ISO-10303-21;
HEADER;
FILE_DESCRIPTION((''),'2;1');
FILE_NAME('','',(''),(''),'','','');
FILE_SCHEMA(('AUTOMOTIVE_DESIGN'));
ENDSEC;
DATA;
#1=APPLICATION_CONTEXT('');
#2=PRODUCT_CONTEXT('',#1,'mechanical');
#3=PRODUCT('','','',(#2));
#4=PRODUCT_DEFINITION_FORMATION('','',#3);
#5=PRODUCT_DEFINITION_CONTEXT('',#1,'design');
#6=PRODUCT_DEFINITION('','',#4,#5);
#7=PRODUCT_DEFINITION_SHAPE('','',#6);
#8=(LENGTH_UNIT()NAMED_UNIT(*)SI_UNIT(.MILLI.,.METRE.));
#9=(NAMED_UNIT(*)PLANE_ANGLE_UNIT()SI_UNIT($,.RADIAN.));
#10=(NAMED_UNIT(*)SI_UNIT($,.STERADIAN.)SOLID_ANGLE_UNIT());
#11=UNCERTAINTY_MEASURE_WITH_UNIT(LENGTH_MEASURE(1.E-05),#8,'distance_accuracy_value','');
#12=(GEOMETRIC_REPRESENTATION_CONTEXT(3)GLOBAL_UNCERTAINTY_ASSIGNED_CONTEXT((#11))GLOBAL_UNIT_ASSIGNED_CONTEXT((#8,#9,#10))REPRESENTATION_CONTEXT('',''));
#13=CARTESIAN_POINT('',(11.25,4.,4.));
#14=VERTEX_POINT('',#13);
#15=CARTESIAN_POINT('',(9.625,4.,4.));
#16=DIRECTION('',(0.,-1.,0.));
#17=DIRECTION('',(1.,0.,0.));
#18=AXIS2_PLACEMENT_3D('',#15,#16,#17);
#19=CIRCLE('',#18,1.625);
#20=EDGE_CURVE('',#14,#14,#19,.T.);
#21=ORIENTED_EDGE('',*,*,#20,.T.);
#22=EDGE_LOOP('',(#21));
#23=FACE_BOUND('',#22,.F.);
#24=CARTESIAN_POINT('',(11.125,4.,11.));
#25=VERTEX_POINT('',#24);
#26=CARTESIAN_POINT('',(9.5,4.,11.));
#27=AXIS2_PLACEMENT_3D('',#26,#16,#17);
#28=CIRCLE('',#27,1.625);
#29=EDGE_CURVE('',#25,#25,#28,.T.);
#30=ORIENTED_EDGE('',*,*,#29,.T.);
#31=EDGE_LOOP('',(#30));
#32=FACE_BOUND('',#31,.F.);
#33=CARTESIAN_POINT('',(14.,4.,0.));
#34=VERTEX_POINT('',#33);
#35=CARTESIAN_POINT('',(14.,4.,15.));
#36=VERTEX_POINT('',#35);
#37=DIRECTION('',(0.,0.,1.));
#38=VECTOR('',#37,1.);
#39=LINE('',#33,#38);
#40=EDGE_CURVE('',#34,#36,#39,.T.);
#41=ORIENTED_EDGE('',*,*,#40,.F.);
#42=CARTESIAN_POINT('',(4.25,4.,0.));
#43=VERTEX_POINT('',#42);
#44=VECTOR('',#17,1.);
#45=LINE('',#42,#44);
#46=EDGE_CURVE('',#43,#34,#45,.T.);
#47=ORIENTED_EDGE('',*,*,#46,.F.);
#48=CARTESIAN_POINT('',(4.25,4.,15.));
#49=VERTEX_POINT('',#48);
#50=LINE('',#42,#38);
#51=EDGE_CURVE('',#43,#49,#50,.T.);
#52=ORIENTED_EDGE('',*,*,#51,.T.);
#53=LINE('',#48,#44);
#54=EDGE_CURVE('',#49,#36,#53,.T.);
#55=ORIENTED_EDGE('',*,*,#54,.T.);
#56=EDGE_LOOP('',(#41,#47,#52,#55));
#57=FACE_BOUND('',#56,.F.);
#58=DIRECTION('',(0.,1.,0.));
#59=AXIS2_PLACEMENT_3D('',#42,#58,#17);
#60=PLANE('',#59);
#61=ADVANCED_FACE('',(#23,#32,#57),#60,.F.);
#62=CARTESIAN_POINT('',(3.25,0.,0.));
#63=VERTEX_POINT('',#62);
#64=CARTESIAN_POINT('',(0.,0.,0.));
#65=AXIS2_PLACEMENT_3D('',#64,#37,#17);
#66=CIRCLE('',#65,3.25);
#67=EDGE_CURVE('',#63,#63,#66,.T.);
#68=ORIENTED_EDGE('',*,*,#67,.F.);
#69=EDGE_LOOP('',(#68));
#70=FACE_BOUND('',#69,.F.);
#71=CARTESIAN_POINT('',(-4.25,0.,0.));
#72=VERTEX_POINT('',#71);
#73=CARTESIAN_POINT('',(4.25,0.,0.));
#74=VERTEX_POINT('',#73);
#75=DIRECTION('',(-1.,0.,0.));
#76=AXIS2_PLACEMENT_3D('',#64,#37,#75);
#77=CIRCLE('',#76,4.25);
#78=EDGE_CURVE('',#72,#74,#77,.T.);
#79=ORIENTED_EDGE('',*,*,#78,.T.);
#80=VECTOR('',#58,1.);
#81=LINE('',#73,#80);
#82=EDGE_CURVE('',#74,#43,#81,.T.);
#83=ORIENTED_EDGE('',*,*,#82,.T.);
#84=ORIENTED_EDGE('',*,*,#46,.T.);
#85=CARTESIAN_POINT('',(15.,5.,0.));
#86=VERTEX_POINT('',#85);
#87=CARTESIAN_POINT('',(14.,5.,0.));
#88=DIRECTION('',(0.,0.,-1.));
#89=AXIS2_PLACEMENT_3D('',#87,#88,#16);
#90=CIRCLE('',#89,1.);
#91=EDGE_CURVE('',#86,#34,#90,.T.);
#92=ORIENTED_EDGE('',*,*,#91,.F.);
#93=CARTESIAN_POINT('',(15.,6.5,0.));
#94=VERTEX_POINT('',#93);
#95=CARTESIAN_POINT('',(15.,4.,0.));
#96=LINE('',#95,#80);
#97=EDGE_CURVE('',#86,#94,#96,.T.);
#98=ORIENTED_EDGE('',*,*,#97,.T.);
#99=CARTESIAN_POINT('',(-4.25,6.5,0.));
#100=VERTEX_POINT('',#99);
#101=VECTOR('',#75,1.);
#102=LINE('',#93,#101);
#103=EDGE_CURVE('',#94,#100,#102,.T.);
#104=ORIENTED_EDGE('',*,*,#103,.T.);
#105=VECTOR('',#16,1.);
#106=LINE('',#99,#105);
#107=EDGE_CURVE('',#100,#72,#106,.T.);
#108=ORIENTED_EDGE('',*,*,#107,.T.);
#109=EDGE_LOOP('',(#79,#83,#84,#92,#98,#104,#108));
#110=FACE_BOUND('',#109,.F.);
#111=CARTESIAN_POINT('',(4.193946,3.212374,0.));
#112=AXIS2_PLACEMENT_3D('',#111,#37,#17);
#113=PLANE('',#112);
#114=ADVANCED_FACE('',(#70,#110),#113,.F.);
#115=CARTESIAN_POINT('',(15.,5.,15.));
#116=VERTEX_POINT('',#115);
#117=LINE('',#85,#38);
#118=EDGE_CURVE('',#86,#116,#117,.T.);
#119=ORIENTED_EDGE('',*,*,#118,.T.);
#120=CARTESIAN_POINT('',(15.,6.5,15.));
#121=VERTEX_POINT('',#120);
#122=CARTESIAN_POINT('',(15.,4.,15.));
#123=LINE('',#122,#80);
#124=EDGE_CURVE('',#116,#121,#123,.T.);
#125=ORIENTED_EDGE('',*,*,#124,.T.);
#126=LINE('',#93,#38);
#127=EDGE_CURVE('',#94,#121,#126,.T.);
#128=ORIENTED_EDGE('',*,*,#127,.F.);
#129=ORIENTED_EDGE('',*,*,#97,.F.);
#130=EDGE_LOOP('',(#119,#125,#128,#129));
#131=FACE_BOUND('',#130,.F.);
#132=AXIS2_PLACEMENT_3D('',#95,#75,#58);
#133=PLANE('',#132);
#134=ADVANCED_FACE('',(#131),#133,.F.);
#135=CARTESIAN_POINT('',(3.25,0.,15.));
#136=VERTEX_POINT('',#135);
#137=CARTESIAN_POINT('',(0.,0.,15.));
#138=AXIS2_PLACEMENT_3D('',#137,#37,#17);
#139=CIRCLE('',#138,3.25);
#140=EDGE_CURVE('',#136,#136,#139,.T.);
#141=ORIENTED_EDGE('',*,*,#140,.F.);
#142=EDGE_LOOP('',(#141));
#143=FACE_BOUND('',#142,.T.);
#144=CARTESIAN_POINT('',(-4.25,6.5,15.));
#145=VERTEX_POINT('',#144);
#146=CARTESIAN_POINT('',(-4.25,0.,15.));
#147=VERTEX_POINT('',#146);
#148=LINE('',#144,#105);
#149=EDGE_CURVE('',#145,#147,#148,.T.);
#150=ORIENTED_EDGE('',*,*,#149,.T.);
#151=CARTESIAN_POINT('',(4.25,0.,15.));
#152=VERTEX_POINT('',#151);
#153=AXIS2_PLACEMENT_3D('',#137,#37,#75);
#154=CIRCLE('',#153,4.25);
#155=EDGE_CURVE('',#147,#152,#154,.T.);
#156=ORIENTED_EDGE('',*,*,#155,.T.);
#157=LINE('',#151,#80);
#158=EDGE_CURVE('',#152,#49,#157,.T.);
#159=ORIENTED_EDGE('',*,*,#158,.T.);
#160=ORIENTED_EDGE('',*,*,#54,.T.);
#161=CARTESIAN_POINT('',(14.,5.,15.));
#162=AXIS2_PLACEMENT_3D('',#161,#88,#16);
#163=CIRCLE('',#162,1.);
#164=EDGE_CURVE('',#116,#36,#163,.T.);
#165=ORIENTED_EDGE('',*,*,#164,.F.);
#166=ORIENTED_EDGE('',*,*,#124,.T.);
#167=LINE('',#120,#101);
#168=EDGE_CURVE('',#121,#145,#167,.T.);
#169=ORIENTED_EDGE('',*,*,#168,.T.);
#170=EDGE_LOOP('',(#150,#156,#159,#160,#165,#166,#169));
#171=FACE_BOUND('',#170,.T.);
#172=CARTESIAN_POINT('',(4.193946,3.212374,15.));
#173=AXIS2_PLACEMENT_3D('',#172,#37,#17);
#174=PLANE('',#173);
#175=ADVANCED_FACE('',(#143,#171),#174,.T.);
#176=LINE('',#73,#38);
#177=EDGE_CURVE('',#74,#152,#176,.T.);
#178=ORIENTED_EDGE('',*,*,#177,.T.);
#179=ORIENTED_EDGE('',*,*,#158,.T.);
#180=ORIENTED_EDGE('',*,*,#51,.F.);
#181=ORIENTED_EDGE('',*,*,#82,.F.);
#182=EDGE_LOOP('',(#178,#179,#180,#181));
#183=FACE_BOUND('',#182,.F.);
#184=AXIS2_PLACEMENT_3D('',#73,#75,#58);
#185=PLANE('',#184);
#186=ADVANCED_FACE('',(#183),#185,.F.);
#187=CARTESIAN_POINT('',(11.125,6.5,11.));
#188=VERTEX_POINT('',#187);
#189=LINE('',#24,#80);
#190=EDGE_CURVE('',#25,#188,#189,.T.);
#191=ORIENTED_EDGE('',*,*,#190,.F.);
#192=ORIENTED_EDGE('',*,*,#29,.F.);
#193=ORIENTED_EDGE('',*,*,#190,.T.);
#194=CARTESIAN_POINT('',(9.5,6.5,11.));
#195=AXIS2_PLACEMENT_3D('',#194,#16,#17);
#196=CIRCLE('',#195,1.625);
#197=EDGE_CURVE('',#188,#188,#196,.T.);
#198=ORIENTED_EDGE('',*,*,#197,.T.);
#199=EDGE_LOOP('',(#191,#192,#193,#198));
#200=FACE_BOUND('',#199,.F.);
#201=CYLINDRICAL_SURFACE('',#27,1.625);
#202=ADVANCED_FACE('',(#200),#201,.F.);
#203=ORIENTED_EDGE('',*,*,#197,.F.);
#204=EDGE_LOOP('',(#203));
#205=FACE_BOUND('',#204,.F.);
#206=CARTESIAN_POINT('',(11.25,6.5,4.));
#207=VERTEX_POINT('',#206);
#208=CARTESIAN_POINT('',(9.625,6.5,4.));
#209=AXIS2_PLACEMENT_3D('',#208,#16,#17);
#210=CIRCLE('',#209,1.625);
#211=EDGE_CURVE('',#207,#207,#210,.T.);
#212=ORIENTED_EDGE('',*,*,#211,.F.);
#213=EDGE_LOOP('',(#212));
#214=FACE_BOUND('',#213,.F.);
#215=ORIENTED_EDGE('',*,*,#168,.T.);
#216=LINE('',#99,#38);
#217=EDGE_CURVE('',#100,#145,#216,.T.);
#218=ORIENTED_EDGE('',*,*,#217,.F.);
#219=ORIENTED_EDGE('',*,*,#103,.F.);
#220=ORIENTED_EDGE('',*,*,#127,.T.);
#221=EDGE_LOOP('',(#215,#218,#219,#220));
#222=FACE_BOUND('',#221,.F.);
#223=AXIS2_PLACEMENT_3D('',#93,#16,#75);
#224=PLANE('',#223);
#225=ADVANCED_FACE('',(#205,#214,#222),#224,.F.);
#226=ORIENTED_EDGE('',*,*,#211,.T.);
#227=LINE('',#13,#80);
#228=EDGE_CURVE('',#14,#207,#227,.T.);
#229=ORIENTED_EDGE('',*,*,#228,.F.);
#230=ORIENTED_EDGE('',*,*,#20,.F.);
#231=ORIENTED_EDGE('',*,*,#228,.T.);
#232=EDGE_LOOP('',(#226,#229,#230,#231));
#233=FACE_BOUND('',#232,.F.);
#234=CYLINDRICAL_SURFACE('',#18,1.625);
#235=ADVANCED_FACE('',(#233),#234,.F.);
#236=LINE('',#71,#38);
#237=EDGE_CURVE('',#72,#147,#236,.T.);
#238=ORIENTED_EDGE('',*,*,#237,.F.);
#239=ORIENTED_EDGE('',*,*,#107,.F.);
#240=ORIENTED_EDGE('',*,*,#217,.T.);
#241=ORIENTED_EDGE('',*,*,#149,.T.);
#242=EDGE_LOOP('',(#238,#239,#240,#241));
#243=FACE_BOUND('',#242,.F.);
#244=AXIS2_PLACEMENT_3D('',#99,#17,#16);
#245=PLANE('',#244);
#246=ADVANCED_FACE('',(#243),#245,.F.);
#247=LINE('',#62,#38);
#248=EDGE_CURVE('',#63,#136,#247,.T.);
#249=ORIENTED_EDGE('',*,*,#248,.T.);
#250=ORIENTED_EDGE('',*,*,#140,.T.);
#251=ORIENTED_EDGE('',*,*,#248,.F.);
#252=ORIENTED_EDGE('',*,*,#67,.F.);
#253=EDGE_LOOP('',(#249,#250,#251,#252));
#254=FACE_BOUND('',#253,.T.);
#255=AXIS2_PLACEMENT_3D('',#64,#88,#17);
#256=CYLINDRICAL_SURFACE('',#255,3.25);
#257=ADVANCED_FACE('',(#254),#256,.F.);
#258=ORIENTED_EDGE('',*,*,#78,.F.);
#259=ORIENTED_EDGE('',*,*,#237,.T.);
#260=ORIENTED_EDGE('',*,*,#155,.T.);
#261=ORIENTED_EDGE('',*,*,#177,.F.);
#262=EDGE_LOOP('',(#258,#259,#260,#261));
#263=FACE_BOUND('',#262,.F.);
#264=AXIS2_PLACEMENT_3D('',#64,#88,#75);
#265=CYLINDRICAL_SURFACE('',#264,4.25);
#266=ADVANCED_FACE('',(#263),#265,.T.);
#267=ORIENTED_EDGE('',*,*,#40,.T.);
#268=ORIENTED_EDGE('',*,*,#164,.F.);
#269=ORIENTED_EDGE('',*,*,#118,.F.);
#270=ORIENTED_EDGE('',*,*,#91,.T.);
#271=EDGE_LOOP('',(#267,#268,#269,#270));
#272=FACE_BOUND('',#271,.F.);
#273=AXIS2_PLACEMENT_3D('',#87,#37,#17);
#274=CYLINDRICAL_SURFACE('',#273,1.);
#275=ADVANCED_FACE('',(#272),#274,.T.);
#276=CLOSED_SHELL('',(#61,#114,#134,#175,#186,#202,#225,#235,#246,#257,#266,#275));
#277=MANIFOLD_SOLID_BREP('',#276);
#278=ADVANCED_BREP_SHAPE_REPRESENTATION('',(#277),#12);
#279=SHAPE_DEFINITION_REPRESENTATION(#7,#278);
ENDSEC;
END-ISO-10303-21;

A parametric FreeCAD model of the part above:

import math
import FreeCAD as App
import Part
import Sketcher

V = App.Vector


def edges_at(feature, points):
    """Names of the edges that pass closest to the given points."""
    edges = feature.Shape.Edges
    near = lambda p: min(range(len(edges)), key=lambda i: edges[i].distToShape(Part.Vertex(*p))[0])
    return sorted({f"Edge{near(p) + 1}" for p in points})

doc = App.newDocument("Part")
body = doc.addObject("PartDesign::Body", "Body")

# Sketch on XY plane
sketch1 = body.newObject("Sketcher::SketchObject", "Sketch")
sketch1.AttachmentSupport = (doc.getObject("XY_Plane"), [""])
sketch1.MapMode = "FlatFace"
sketch1.addGeometry([
    Part.LineSegment(V(-4.25, 6.5, 0), V(-4.25, 0, 0)),  # 0
    Part.ArcOfCircle(Part.Circle(V(0, 0, 0), V(0, 0, 1), 4.25), math.radians(180), math.radians(360)),  # 1
    Part.LineSegment(V(4.25, 0, 0), V(4.25, 4, 0)),  # 2
    Part.LineSegment(V(4.25, 4, 0), V(15, 4, 0)),  # 3
    Part.LineSegment(V(15, 4, 0), V(15, 6.5, 0)),  # 4
    Part.LineSegment(V(15, 6.5, 0), V(-4.25, 6.5, 0)),  # 5
    Part.Circle(V(0, 0, 0), V(0, 0, 1), 3.25),  # 6
], False)
sketch1.addConstraint([
    Sketcher.Constraint("Tangent", 0, 2, 1, 1),
    Sketcher.Constraint("Tangent", 1, 2, 2, 1),
    Sketcher.Constraint("Coincident", 2, 2, 3, 1),
    Sketcher.Constraint("Coincident", 3, 2, 4, 1),
    Sketcher.Constraint("Coincident", 4, 2, 5, 1),
    Sketcher.Constraint("Coincident", 5, 2, 0, 1),
    Sketcher.Constraint("Vertical", 0),
    Sketcher.Constraint("Vertical", 2),
    Sketcher.Constraint("Horizontal", 3),
    Sketcher.Constraint("Vertical", 4),
    Sketcher.Constraint("Horizontal", 5),
    Sketcher.Constraint("Coincident", 1, 3, -1, 1),
    Sketcher.Constraint("Coincident", 6, 3, -1, 1),
    Sketcher.Constraint("Diameter", 6, 6.5),
    Sketcher.Constraint("DistanceY", 2, 1, 2, 2, 4.0),
    Sketcher.Constraint("Radius", 1, 4.25),
    Sketcher.Constraint("DistanceY", 0, 2, 0, 1, 6.5),
    Sketcher.Constraint("DistanceX", -1, 1, 3, 2, 15.0),
])
pad1 = body.newObject("PartDesign::Pad", "Pad")
pad1.Profile = sketch1
pad1.Length = 15

# Sketch on XZ plane
sketch2 = body.newObject("Sketcher::SketchObject", "Sketch001")
sketch2.AttachmentSupport = (doc.getObject("XZ_Plane"), [""])
sketch2.MapMode = "FlatFace"
sketch2.AttachmentOffset = App.Placement(V(0, 0, -4), App.Rotation())
sketch2.addGeometry([
    Part.Circle(V(9.5, 11, 0), V(0, 0, 1), 1.625),
    Part.Circle(V(9.625, 4, 0), V(0, 0, 1), 1.625),
], False)
sketch2.addConstraint([
    Sketcher.Constraint("Equal", 0, 1),
    Sketcher.Constraint("Diameter", 0, 3.25),
    Sketcher.Constraint("DistanceY", -1, 1, 0, 3, 11.0),
    Sketcher.Constraint("DistanceY", -1, 1, 1, 3, 4.0),
    Sketcher.Constraint("DistanceX", -1, 1, 0, 3, 9.5),
    Sketcher.Constraint("DistanceX", -1, 1, 1, 3, 9.625),
])
pocket1 = body.newObject("PartDesign::Pocket", "Pocket")
pocket1.Profile = sketch2
pocket1.Length = 3
doc.recompute()

fillet = body.newObject("PartDesign::Fillet", "Fillet")
fillet.Base = (pocket1, edges_at(pocket1, [(15, 4, 7.5)]))
fillet.Radius = 1

doc.recompute()
